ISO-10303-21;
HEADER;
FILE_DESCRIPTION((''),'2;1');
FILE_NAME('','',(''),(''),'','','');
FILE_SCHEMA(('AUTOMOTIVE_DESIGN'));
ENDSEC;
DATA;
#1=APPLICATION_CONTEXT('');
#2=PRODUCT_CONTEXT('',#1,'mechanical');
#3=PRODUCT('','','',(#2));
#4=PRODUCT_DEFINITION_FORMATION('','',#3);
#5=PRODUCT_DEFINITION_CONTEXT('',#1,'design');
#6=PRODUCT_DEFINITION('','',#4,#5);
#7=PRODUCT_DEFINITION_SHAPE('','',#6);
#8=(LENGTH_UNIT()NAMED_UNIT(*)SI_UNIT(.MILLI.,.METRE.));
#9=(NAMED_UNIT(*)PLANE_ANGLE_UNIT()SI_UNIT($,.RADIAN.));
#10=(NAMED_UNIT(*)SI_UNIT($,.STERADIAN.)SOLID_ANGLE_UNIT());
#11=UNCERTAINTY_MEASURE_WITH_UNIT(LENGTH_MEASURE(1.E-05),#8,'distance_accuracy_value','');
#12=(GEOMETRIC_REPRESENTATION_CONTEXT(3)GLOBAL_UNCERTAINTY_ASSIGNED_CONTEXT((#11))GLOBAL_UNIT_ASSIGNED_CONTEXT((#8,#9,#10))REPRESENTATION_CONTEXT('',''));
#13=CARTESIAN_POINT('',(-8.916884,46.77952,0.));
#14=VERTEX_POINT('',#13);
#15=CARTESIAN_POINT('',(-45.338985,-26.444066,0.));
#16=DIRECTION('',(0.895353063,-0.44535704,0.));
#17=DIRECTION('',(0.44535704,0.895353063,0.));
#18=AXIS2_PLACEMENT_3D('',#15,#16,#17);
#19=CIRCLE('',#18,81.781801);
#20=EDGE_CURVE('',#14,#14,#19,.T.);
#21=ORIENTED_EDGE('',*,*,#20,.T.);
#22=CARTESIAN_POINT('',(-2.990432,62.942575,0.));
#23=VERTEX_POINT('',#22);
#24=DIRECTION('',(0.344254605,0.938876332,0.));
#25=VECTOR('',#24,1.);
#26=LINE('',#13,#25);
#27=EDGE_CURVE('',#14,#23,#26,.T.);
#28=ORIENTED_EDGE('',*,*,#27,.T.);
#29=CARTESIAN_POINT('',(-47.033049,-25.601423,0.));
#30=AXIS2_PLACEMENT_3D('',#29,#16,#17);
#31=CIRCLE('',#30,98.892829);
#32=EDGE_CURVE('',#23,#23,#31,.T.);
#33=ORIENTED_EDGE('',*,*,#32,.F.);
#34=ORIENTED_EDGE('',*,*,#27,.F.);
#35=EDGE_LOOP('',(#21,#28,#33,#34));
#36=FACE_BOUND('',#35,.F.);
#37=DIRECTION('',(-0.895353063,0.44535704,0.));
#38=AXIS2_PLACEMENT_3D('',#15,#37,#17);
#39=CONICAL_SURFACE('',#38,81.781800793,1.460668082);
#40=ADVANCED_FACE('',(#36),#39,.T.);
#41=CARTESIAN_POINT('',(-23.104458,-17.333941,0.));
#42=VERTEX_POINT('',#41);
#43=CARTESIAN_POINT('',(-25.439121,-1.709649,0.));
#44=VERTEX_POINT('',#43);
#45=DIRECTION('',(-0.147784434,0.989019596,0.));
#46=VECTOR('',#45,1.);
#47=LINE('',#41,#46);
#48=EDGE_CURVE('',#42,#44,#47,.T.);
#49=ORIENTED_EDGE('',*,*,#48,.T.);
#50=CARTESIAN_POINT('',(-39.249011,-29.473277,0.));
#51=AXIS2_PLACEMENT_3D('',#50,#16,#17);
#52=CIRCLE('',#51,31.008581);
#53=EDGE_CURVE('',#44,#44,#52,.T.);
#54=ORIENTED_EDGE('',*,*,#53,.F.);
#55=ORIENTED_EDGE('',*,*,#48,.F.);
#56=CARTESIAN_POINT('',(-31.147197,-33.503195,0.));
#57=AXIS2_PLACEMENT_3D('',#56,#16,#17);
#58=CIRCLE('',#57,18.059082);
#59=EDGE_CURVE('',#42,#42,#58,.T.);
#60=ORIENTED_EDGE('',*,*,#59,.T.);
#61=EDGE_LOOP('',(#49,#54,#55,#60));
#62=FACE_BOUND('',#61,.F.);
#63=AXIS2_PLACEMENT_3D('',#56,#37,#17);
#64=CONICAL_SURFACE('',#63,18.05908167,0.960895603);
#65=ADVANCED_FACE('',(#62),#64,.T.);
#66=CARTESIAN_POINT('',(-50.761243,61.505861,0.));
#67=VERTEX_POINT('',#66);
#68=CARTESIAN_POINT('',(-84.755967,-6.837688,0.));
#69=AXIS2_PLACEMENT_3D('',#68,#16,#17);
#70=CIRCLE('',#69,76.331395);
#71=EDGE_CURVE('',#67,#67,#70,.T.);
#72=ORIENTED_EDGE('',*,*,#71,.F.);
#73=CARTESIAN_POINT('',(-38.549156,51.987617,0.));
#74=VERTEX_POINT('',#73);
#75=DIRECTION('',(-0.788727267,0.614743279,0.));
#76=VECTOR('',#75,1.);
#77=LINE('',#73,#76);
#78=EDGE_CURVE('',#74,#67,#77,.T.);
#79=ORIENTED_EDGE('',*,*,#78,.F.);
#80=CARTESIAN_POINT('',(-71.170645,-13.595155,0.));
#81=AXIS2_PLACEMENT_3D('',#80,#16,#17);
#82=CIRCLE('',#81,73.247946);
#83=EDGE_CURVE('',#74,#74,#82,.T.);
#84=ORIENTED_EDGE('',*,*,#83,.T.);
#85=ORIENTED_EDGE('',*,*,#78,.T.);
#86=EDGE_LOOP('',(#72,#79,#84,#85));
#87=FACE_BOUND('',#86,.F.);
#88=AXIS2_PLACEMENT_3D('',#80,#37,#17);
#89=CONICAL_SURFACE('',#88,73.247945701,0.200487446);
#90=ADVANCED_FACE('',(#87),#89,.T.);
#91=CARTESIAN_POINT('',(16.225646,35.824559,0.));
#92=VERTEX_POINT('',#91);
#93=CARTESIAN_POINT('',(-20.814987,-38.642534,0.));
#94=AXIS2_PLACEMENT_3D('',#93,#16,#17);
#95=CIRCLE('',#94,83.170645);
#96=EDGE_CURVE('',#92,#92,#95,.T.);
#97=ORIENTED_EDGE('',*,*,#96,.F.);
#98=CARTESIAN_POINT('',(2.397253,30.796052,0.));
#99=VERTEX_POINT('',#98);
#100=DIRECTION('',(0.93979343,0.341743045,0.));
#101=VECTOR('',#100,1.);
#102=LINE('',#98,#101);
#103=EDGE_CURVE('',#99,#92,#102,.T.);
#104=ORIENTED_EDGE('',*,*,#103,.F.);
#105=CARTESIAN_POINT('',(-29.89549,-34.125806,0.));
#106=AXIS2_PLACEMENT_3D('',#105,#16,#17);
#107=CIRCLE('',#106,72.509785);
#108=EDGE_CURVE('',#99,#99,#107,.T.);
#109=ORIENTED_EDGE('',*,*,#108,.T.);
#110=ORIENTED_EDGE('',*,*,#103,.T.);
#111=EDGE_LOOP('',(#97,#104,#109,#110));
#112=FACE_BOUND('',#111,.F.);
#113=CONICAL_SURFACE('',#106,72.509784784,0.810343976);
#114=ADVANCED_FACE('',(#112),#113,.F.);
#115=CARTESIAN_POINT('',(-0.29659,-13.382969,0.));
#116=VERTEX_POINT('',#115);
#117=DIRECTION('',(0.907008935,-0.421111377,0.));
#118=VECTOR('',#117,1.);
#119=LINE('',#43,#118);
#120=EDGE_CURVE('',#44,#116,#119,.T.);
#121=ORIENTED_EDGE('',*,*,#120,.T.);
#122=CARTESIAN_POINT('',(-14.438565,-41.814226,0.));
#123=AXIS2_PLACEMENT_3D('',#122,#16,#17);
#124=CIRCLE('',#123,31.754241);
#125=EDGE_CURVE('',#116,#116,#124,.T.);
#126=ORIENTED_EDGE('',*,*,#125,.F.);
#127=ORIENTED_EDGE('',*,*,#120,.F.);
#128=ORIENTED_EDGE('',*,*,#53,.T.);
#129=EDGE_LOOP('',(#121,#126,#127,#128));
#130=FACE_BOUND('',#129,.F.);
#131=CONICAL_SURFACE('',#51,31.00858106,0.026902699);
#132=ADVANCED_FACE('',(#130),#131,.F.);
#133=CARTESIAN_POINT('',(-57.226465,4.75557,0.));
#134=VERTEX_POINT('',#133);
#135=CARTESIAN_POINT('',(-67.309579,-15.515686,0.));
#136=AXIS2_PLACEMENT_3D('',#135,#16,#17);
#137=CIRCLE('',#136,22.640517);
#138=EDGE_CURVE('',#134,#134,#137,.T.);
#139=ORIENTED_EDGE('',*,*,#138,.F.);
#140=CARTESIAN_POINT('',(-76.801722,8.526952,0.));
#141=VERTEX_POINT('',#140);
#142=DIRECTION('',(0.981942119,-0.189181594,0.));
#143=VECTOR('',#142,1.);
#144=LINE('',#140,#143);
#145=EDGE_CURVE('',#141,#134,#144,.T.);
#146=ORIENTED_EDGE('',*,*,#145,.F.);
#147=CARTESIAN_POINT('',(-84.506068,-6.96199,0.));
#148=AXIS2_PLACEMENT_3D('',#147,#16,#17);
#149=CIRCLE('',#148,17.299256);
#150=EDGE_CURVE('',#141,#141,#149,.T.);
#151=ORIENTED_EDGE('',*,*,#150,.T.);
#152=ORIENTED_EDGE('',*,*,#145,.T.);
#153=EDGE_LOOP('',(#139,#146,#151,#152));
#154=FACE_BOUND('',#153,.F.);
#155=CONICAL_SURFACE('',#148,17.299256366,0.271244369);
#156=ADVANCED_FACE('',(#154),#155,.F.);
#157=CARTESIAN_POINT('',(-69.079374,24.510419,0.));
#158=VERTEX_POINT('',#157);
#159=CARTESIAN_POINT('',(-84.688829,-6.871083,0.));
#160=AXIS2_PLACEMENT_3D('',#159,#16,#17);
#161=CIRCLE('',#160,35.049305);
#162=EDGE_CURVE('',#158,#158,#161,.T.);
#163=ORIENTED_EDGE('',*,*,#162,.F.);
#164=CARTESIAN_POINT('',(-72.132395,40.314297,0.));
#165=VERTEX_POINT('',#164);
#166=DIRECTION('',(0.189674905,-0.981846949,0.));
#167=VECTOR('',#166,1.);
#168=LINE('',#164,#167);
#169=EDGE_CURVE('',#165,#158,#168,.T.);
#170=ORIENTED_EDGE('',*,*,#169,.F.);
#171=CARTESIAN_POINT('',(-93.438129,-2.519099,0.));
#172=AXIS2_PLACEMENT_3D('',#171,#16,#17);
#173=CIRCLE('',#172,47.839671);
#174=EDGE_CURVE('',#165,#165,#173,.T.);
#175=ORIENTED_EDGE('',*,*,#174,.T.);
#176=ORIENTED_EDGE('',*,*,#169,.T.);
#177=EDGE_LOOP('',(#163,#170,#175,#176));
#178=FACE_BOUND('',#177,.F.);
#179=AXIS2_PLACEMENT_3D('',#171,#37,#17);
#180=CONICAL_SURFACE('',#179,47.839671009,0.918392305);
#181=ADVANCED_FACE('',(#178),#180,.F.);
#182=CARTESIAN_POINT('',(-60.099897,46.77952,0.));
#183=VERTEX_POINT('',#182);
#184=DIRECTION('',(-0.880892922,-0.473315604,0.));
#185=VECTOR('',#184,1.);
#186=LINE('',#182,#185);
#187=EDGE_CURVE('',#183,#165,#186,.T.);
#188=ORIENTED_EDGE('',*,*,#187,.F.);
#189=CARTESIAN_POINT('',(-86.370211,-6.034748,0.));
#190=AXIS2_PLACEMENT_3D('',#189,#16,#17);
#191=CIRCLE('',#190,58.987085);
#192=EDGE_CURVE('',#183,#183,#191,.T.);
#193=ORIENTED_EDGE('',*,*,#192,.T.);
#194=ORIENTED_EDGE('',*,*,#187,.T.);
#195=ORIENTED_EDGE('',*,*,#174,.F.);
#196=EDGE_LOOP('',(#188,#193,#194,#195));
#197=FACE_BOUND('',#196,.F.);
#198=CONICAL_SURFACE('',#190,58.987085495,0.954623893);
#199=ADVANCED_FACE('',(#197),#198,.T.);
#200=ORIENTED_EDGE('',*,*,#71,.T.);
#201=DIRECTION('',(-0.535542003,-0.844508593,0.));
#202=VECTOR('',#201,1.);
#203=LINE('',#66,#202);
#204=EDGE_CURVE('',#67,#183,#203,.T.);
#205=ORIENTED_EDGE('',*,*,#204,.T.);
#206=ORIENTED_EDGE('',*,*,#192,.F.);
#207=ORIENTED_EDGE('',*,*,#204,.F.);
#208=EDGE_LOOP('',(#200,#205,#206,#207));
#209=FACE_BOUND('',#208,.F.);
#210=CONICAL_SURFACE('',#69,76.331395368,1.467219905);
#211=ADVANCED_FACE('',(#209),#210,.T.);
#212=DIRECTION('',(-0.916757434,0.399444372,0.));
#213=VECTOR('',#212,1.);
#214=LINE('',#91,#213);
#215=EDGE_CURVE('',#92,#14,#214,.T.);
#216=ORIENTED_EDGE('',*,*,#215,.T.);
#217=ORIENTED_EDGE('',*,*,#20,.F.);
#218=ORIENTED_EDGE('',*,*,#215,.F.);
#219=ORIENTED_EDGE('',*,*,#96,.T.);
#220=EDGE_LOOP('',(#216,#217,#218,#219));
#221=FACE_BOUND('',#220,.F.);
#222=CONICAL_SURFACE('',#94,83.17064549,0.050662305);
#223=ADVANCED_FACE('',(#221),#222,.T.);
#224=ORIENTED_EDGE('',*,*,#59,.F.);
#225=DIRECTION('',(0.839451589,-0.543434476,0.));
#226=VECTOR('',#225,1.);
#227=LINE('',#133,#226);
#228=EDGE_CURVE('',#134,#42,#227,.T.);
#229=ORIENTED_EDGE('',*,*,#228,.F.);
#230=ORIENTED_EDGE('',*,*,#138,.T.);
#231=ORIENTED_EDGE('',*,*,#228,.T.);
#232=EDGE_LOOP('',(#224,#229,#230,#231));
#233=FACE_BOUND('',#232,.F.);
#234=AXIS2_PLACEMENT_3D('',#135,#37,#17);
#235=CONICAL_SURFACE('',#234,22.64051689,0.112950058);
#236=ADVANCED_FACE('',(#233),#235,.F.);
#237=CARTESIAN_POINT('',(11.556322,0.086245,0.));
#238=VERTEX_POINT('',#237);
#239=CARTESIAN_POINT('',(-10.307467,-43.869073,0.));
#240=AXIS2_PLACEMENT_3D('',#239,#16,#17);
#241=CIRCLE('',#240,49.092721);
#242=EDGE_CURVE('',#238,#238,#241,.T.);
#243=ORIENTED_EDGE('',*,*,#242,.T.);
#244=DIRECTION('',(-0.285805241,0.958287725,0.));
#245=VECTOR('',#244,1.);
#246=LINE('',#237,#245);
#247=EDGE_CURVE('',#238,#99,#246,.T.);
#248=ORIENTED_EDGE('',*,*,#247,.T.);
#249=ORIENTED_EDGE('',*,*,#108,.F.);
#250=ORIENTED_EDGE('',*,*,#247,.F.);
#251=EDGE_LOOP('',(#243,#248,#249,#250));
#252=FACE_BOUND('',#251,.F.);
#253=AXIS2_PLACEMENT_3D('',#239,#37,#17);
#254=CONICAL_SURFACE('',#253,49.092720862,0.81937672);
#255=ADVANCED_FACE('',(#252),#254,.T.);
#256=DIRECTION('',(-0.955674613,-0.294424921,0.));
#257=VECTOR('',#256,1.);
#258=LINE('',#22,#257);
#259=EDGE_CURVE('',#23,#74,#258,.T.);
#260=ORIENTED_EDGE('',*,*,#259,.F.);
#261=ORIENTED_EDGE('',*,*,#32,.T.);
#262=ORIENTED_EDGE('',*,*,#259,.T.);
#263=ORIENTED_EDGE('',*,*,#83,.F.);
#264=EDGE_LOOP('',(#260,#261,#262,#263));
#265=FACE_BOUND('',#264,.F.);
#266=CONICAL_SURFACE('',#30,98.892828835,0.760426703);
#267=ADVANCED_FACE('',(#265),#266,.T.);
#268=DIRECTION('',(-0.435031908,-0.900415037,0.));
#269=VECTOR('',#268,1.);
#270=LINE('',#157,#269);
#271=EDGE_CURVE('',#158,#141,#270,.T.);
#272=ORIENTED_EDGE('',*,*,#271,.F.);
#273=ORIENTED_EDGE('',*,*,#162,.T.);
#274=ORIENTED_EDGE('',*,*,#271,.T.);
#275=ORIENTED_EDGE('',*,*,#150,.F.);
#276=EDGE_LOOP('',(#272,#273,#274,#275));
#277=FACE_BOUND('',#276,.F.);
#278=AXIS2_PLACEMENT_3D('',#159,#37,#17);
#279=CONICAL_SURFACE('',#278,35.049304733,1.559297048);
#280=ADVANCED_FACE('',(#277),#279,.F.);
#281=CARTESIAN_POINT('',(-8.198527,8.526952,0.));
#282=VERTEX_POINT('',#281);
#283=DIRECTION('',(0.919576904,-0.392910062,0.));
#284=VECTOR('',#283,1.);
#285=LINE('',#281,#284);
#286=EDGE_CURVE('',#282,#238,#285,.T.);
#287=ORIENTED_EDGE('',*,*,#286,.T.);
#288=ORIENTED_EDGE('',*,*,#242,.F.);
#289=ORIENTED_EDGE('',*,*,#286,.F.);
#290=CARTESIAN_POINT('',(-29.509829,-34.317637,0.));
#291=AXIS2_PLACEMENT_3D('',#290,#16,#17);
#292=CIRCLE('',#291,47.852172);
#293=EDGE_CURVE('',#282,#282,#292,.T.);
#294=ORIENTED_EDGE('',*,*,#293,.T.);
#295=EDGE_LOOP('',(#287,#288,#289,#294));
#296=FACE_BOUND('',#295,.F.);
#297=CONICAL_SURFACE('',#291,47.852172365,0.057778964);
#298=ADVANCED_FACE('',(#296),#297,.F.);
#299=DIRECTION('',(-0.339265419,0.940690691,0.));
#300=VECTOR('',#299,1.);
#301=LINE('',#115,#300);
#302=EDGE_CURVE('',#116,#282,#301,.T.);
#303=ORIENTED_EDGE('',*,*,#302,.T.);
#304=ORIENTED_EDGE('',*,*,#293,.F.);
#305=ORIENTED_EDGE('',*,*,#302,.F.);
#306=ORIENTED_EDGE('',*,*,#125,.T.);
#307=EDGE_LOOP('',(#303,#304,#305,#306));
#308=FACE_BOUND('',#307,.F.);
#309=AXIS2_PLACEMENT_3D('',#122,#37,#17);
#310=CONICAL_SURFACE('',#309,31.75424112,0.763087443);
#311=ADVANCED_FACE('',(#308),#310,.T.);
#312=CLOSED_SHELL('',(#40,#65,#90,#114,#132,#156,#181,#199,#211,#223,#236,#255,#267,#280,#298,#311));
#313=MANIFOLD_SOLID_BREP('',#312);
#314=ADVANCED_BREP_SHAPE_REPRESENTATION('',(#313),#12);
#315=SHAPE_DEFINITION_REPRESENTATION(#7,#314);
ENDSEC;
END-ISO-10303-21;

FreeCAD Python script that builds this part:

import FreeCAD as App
import Part
import Sketcher
from FreeCAD import Vector

doc = App.newDocument("Part")
body = doc.addObject("PartDesign::Body", "Body")

# Sketch on XY plane
sketch1 = body.newObject("Sketcher::SketchObject", "Sketch")
sketch1.AttachmentSupport = (doc.getObject("XY_Plane"), [""])
sketch1.MapMode = "FlatFace"
sketch1.addGeometry(Part.LineSegment(Vector(-60, 47, 0), Vector(-72, 40, 0)), False)
sketch1.addGeometry(Part.LineSegment(Vector(-72, 40, 0), Vector(-69, 25, 0)), False)
sketch1.addGeometry(Part.LineSegment(Vector(-69, 25, 0), Vector(-77, 9, 0)), False)
sketch1.addGeometry(Part.LineSegment(Vector(-77, 9, 0), Vector(-57, 5, 0)), False)
sketch1.addGeometry(Part.LineSegment(Vector(-57, 5, 0), Vector(-23, -17, 0)), False)
sketch1.addGeometry(Part.LineSegment(Vector(-23, -17, 0), Vector(-25, -2, 0)), False)
sketch1.addGeometry(Part.LineSegment(Vector(-25, -2, 0), Vector(0, -13, 0)), False)
sketch1.addGeometry(Part.LineSegment(Vector(0, -13, 0), Vector(-8, 9, 0)), False)
sketch1.addGeometry(Part.LineSegment(Vector(-8, 9, 0), Vector(12, 0, 0)), False)
sketch1.addGeometry(Part.LineSegment(Vector(12, 0, 0), Vector(2, 31, 0)), False)
sketch1.addGeometry(Part.LineSegment(Vector(2, 31, 0), Vector(16, 36, 0)), False)
sketch1.addGeometry(Part.LineSegment(Vector(16, 36, 0), Vector(-9, 47, 0)), False)
sketch1.addGeometry(Part.LineSegment(Vector(-9, 47, 0), Vector(-3, 63, 0)), False)
sketch1.addGeometry(Part.LineSegment(Vector(-3, 63, 0), Vector(-39, 52, 0)), False)
sketch1.addGeometry(Part.LineSegment(Vector(-39, 52, 0), Vector(-51, 62, 0)), False)
sketch1.addGeometry(Part.LineSegment(Vector(-51, 62, 0), Vector(-60, 47, 0)), False)
sketch1.addGeometry(Part.LineSegment(Vector(-93, -3, 0), Vector(-10, -44, 0)), True)  # axis
sketch1.addConstraint(Sketcher.Constraint("Coincident", 0, 2, 1, 1))
sketch1.addConstraint(Sketcher.Constraint("Coincident", 1, 2, 2, 1))
sketch1.addConstraint(Sketcher.Constraint("Coincident", 2, 2, 3, 1))
sketch1.addConstraint(Sketcher.Constraint("Coincident", 3, 2, 4, 1))
sketch1.addConstraint(Sketcher.Constraint("Coincident", 4, 2, 5, 1))
sketch1.addConstraint(Sketcher.Constraint("Coincident", 5, 2, 6, 1))
sketch1.addConstraint(Sketcher.Constraint("Coincident", 6, 2, 7, 1))
sketch1.addConstraint(Sketcher.Constraint("Coincident", 7, 2, 8, 1))
sketch1.addConstraint(Sketcher.Constraint("Coincident", 8, 2, 9, 1))
sketch1.addConstraint(Sketcher.Constraint("Coincident", 9, 2, 10, 1))
sketch1.addConstraint(Sketcher.Constraint("Coincident", 10, 2, 11, 1))
sketch1.addConstraint(Sketcher.Constraint("Coincident", 11, 2, 12, 1))
sketch1.addConstraint(Sketcher.Constraint("Coincident", 12, 2, 13, 1))
sketch1.addConstraint(Sketcher.Constraint("Coincident", 13, 2, 14, 1))
sketch1.addConstraint(Sketcher.Constraint("Coincident", 14, 2, 15, 1))
sketch1.addConstraint(Sketcher.Constraint("Coincident", 15, 2, 0, 1))
sketch1.addConstraint(Sketcher.Constraint("Horizontal", 2, 2, 7, 2))
sketch1.addConstraint(Sketcher.Constraint("Horizontal", 11, 2, 15, 2))
sketch1.addConstraint(Sketcher.Constraint("Distance", 11, 27.425499))
sketch1.addConstraint(Sketcher.Constraint("DistanceY", 16, 1, -1, 1, 2.519099))
sketch1.addConstraint(Sketcher.Constraint("DistanceX", 2, 2, 5, 2, 51.362602))
sketch1.addConstraint(Sketcher.Constraint("DistanceY", 5, 2, 2, 2, 10.2366))
sketch1.addConstraint(Sketcher.Constraint("DistanceY", 7, 2, 9, 2, 22.2691))
sketch1.addConstraint(Sketcher.Constraint("DistanceY", 1, 2, 13, 2, 27.477198))
sketch1.addConstraint(Sketcher.Constraint("DistanceY", 1, 2, 15, 2, 22.269101))
sketch1.addConstraint(Sketcher.Constraint("Distance", 1, 16.096071))
sketch1.addConstraint(Sketcher.Constraint("Distance", 8, 21.482542))
sketch1.addConstraint(Sketcher.Constraint("Distance", 9, 32.046541))
sketch1.addConstraint(Sketcher.Constraint("Distance", 10, 14.71429))
sketch1.addConstraint(Sketcher.Constraint("Distance", 12, 17.215318))
sketch1.addConstraint(Sketcher.Constraint("Distance", 14, 15.483282))
sketch1.addConstraint(Sketcher.Constraint("DistanceY", -1, 1, 1, 2, 24.510419))
sketch1.addConstraint(Sketcher.Constraint("DistanceY", -1, 1, 2, 2, 8.526952))
sketch1.addConstraint(Sketcher.Constraint("DistanceY", -1, 1, 3, 2, 4.75557))
sketch1.addConstraint(Sketcher.Constraint("DistanceX", 4, 2, -1, 1, 23.104458))
sketch1.addConstraint(Sketcher.Constraint("DistanceY", 4, 2, -1, 1, 17.333941))
sketch1.addConstraint(Sketcher.Constraint("DistanceX", 5, 2, -1, 1, 25.439121))
sketch1.addConstraint(Sketcher.Constraint("DistanceX", 6, 2, -1, 1, 0.29659))
sketch1.addConstraint(Sketcher.Constraint("DistanceY", 6, 2, -1, 1, 13.382969))
sketch1.addConstraint(Sketcher.Constraint("DistanceY", -1, 1, 10, 2, 35.824559))
sketch1.addConstraint(Sketcher.Constraint("DistanceX", 12, 2, -1, 1, 2.990432))
sketch1.addConstraint(Sketcher.Constraint("DistanceY", -1, 1, 14, 2, 61.505861))
sketch1.addConstraint(Sketcher.Constraint("DistanceX", 16, 1, -1, 1, 93.438129))
sketch1.addConstraint(Sketcher.Constraint("DistanceX", 0, 2, 1, 2, 3.053021))
sketch1.addConstraint(Sketcher.Constraint("DistanceX", 1, 2, 3, 2, 11.852909))
sketch1.addConstraint(Sketcher.Constraint("DistanceX", 4, 2, 7, 2, 14.905931))
sketch1.addConstraint(Sketcher.Constraint("DistanceX", 3, 2, 7, 2, 49.027938))
sketch1.addConstraint(Sketcher.Constraint("DistanceX", 7, 2, 8, 2, 19.754849))
sketch1.addConstraint(Sketcher.Constraint("DistanceX", 0, 2, 13, 2, 33.583239))
sketch1.addConstraint(Sketcher.Constraint("DistanceX", 15, 2, 13, 2, 21.550741))
sketch1.addConstraint(Sketcher.Constraint("DistanceX", 4, 2, 16, 2, 12.796992))
sketch1.addConstraint(Sketcher.Constraint("Distance", 16, 92.846796))
revolution = body.newObject("PartDesign::Revolution", "Revolution")
revolution.Profile = sketch1
revolution.ReferenceAxis = (sketch1, ["Axis0"])
revolution.Angle = 360

doc.recompute()
